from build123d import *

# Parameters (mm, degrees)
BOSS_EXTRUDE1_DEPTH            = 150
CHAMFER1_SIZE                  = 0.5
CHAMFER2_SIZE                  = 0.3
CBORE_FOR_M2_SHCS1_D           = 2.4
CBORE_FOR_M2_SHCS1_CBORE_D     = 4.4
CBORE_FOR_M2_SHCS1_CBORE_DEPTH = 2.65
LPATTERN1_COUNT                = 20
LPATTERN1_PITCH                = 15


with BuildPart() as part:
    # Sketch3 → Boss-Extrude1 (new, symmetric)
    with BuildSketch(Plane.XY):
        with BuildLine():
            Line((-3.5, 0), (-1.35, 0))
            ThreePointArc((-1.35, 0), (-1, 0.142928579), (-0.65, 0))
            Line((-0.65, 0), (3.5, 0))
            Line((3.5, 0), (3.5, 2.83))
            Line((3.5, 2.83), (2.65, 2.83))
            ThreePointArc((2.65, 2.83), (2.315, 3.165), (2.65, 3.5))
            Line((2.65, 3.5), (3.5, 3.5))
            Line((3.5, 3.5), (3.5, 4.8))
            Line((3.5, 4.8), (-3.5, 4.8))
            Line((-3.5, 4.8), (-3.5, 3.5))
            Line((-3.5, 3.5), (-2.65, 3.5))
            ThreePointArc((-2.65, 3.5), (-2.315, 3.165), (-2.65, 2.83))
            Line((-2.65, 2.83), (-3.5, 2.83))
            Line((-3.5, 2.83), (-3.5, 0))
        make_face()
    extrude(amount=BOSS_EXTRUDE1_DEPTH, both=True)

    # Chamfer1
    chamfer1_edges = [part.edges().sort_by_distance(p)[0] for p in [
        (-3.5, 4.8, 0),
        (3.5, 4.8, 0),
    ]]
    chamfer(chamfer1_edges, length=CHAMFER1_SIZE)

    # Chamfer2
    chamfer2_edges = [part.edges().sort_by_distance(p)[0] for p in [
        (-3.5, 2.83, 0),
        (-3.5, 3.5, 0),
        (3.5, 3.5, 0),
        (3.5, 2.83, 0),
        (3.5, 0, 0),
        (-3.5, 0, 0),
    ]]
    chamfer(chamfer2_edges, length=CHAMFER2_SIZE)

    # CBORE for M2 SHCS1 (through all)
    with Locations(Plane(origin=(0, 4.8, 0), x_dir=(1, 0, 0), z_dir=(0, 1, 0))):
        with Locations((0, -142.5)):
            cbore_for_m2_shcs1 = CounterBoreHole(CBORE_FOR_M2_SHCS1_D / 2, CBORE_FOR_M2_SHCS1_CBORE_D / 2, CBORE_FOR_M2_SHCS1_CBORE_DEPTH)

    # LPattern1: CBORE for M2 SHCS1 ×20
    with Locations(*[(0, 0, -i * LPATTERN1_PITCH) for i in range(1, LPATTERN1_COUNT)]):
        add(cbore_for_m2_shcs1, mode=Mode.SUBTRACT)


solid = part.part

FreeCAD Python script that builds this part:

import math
import FreeCAD as App
import Part
import Sketcher

V = App.Vector


def edges_at(feature, points):
    """Names of the edges that pass closest to the given points."""
    edges = feature.Shape.Edges
    near = lambda p: min(range(len(edges)), key=lambda i: edges[i].distToShape(Part.Vertex(*p))[0])
    return sorted({f"Edge{near(p) + 1}" for p in points})

doc = App.newDocument("Part")
params = doc.addObject("Spreadsheet::Sheet", "Params")
for row, (alias, value) in enumerate([
    ("sketch1_radius", "0.5 mm"),
    ("sketch1_width", "7 mm"),
    ("sketch1_height", "1.3 mm"),
    ("sketch1_width2", "2.15 mm"),
    ("sketch1_height2", "2.83 mm"),
    ("pad1_length", "300 mm"),
    ("chamfer_size", "0.5 mm"),
    ("chamfer2_size", "0.3 mm"),
    ("sketch2_diameter", "2.4 mm"),
    ("hole_diameter", "2.4 mm"),
    ("hole_cbore_diameter", "4.4 mm"),
    ("hole_cbore_depth", "2.65 mm"),
    ("linearpattern_pitch", "15 mm"),
], start=1):
    params.set(f"A{row}", alias)
    params.set(f"B{row}", "=" + value)
    params.setAlias(f"B{row}", alias)

body = doc.addObject("PartDesign::Body", "Body")

# Sketch on XY plane
sketch1 = body.newObject("Sketcher::SketchObject", "Sketch")
sketch1.AttachmentSupport = (doc.getObject("XY_Plane"), [""])
sketch1.MapMode = "FlatFace"
sketch1.addGeometry([
    Part.LineSegment(V(-3.5, 0, 0), V(-1.35, 0, 0)),  # 0
    Part.ArcOfCircle(Part.Circle(V(-1, -0.357071, 0), V(0, 0, 1), 0.5), math.radians(45.572996), math.radians(134.427004)),  # 1
    Part.LineSegment(V(-0.65, 0, 0), V(3.5, 0, 0)),  # 2
    Part.LineSegment(V(3.5, 0, 0), V(3.5, 2.83, 0)),  # 3
    Part.LineSegment(V(3.5, 2.83, 0), V(2.65, 2.83, 0)),  # 4
    Part.ArcOfCircle(Part.Circle(V(2.65, 3.165, 0), V(0, 0, 1), 0.335), math.radians(90), math.radians(270)),  # 5
    Part.LineSegment(V(2.65, 3.5, 0), V(3.5, 3.5, 0)),  # 6
    Part.LineSegment(V(3.5, 3.5, 0), V(3.5, 4.8, 0)),  # 7
    Part.LineSegment(V(3.5, 4.8, 0), V(-3.5, 4.8, 0)),  # 8
    Part.LineSegment(V(-3.5, 4.8, 0), V(-3.5, 3.5, 0)),  # 9
    Part.LineSegment(V(-3.5, 3.5, 0), V(-2.65, 3.5, 0)),  # 10
    Part.ArcOfCircle(Part.Circle(V(-2.65, 3.165, 0), V(0, 0, 1), 0.335), math.radians(-90), math.radians(90)),  # 11
    Part.LineSegment(V(-2.65, 2.83, 0), V(-3.5, 2.83, 0)),  # 12
    Part.LineSegment(V(-3.5, 2.83, 0), V(-3.5, 0, 0)),  # 13
], False)
sketch1.addConstraint([
    Sketcher.Constraint("Coincident", 0, 2, 1, 2),
    Sketcher.Constraint("Coincident", 1, 1, 2, 1),
    Sketcher.Constraint("Coincident", 2, 2, 3, 1),
    Sketcher.Constraint("Coincident", 3, 2, 4, 1),
    Sketcher.Constraint("Tangent", 4, 2, 5, 2),
    Sketcher.Constraint("Tangent", 5, 1, 6, 1),
    Sketcher.Constraint("Coincident", 6, 2, 7, 1),
    Sketcher.Constraint("Coincident", 7, 2, 8, 1),
    Sketcher.Constraint("Coincident", 8, 2, 9, 1),
    Sketcher.Constraint("Coincident", 9, 2, 10, 1),
    Sketcher.Constraint("Tangent", 10, 2, 11, 2),
    Sketcher.Constraint("Tangent", 11, 1, 12, 1),
    Sketcher.Constraint("Coincident", 12, 2, 13, 1),
    Sketcher.Constraint("Coincident", 13, 2, 0, 1),
    Sketcher.Constraint("Horizontal", 0),
    Sketcher.Constraint("Horizontal", 2),
    Sketcher.Constraint("Vertical", 3),
    Sketcher.Constraint("Horizontal", 4),
    Sketcher.Constraint("Horizontal", 6),
    Sketcher.Constraint("Vertical", 7),
    Sketcher.Constraint("Horizontal", 8),
    Sketcher.Constraint("Vertical", 9),
    Sketcher.Constraint("Horizontal", 10),
    Sketcher.Constraint("Horizontal", 12),
    Sketcher.Constraint("Vertical", 13),
    Sketcher.Constraint("Equal", 5, 11),
    Sketcher.Constraint("Symmetric", 2, 2, 13, 2, -1, 1),
    Sketcher.Constraint("Symmetric", 5, 3, 11, 3, -2),
    Sketcher.Constraint("PointOnObject", 0, 2, -1),
    Sketcher.Constraint("Vertical", 3, 2, 6, 2),
    Sketcher.Constraint("Vertical", 9, 2, 12, 2),
    Sketcher.Constraint("Radius", 1, 0.5),
    Sketcher.Constraint("DistanceX", 8, 2, 8, 1, 7.0),
    Sketcher.Constraint("DistanceY", 7, 1, 7, 2, 1.3),
    Sketcher.Constraint("DistanceX", 1, 3, -1, 1, 1.0),
    Sketcher.Constraint("Radius", 5, 0.335),
    Sketcher.Constraint("DistanceX", 0, 2, 5, 3, 4.0),
    Sketcher.Constraint("DistanceX", 0, 1, 0, 2, 2.15),
    Sketcher.Constraint("DistanceY", 3, 1, 3, 2, 2.83),
])
sketch1.setExpression("Constraints[31]", "Params.sketch1_radius")
sketch1.setExpression("Constraints[32]", "Params.sketch1_width")
sketch1.setExpression("Constraints[33]", "Params.sketch1_height")
sketch1.setExpression("Constraints[37]", "Params.sketch1_width2")
sketch1.setExpression("Constraints[38]", "Params.sketch1_height2")
pad1 = body.newObject("PartDesign::Pad", "Pad")
pad1.Profile = sketch1
pad1.setExpression("Length", "Params.pad1_length")
pad1.Midplane = True
doc.recompute()

chamfer = body.newObject("PartDesign::Chamfer", "Chamfer")
chamfer.Base = (pad1, edges_at(pad1, [(-3.5, 4.8, 0), (3.5, 4.8, 0)]))
chamfer.setExpression("Size", "Params.chamfer_size")
doc.recompute()

chamfer2 = body.newObject("PartDesign::Chamfer", "Chamfer001")
chamfer2.Base = (chamfer, edges_at(chamfer, [
    (-3.5, 2.83, 0),
    (-3.5, 3.5, 0),
    (3.5, 3.5, 0),
    (3.5, 2.83, 0),
    (3.5, 0, 0),
    (-3.5, 0, 0),
]))
chamfer2.setExpression("Size", "Params.chamfer2_size")

# Sketch on XZ plane
sketch2 = body.newObject("Sketcher::SketchObject", "Sketch001")
sketch2.AttachmentSupport = (doc.getObject("XZ_Plane"), [""])
sketch2.MapMode = "FlatFace"
sketch2.AttachmentOffset = App.Placement(V(0, 0, -4.8), App.Rotation())
sketch2.addGeometry(Part.Circle(V(0, 142.5, 0), V(0, 0, 1), 1.2), False)
sketch2.addConstraint([
    Sketcher.Constraint("PointOnObject", 0, 3, -2),
    Sketcher.Constraint("Diameter", 0, 2.4),
    Sketcher.Constraint("DistanceY", -1, 1, 0, 3, 142.5),
])
sketch2.setExpression("Constraints[1]", "Params.sketch2_diameter")
doc.recompute()
hole = body.newObject("PartDesign::Hole", "Hole")
hole.Profile = sketch2
hole.ThreadType = "None"
hole.setExpression("Diameter", "Params.hole_diameter")
hole.DepthType = "ThroughAll"
hole.HoleCutType = "Counterbore"
hole.setExpression("HoleCutDiameter", "Params.hole_cbore_diameter")
hole.setExpression("HoleCutDepth", "Params.hole_cbore_depth")
hole.Reversed = True
doc.recompute()

linearpattern = body.newObject("PartDesign::LinearPattern", "LinearPattern")
linearpattern.Originals = [hole]
linearpattern.Direction = (doc.getObject("Z_Axis"), [""])
linearpattern.Mode = "offset"
linearpattern.setExpression("Offset", "Params.linearpattern_pitch")
linearpattern.Occurrences = 20
linearpattern.Reversed = True
body.Tip = linearpattern

doc.recompute()
